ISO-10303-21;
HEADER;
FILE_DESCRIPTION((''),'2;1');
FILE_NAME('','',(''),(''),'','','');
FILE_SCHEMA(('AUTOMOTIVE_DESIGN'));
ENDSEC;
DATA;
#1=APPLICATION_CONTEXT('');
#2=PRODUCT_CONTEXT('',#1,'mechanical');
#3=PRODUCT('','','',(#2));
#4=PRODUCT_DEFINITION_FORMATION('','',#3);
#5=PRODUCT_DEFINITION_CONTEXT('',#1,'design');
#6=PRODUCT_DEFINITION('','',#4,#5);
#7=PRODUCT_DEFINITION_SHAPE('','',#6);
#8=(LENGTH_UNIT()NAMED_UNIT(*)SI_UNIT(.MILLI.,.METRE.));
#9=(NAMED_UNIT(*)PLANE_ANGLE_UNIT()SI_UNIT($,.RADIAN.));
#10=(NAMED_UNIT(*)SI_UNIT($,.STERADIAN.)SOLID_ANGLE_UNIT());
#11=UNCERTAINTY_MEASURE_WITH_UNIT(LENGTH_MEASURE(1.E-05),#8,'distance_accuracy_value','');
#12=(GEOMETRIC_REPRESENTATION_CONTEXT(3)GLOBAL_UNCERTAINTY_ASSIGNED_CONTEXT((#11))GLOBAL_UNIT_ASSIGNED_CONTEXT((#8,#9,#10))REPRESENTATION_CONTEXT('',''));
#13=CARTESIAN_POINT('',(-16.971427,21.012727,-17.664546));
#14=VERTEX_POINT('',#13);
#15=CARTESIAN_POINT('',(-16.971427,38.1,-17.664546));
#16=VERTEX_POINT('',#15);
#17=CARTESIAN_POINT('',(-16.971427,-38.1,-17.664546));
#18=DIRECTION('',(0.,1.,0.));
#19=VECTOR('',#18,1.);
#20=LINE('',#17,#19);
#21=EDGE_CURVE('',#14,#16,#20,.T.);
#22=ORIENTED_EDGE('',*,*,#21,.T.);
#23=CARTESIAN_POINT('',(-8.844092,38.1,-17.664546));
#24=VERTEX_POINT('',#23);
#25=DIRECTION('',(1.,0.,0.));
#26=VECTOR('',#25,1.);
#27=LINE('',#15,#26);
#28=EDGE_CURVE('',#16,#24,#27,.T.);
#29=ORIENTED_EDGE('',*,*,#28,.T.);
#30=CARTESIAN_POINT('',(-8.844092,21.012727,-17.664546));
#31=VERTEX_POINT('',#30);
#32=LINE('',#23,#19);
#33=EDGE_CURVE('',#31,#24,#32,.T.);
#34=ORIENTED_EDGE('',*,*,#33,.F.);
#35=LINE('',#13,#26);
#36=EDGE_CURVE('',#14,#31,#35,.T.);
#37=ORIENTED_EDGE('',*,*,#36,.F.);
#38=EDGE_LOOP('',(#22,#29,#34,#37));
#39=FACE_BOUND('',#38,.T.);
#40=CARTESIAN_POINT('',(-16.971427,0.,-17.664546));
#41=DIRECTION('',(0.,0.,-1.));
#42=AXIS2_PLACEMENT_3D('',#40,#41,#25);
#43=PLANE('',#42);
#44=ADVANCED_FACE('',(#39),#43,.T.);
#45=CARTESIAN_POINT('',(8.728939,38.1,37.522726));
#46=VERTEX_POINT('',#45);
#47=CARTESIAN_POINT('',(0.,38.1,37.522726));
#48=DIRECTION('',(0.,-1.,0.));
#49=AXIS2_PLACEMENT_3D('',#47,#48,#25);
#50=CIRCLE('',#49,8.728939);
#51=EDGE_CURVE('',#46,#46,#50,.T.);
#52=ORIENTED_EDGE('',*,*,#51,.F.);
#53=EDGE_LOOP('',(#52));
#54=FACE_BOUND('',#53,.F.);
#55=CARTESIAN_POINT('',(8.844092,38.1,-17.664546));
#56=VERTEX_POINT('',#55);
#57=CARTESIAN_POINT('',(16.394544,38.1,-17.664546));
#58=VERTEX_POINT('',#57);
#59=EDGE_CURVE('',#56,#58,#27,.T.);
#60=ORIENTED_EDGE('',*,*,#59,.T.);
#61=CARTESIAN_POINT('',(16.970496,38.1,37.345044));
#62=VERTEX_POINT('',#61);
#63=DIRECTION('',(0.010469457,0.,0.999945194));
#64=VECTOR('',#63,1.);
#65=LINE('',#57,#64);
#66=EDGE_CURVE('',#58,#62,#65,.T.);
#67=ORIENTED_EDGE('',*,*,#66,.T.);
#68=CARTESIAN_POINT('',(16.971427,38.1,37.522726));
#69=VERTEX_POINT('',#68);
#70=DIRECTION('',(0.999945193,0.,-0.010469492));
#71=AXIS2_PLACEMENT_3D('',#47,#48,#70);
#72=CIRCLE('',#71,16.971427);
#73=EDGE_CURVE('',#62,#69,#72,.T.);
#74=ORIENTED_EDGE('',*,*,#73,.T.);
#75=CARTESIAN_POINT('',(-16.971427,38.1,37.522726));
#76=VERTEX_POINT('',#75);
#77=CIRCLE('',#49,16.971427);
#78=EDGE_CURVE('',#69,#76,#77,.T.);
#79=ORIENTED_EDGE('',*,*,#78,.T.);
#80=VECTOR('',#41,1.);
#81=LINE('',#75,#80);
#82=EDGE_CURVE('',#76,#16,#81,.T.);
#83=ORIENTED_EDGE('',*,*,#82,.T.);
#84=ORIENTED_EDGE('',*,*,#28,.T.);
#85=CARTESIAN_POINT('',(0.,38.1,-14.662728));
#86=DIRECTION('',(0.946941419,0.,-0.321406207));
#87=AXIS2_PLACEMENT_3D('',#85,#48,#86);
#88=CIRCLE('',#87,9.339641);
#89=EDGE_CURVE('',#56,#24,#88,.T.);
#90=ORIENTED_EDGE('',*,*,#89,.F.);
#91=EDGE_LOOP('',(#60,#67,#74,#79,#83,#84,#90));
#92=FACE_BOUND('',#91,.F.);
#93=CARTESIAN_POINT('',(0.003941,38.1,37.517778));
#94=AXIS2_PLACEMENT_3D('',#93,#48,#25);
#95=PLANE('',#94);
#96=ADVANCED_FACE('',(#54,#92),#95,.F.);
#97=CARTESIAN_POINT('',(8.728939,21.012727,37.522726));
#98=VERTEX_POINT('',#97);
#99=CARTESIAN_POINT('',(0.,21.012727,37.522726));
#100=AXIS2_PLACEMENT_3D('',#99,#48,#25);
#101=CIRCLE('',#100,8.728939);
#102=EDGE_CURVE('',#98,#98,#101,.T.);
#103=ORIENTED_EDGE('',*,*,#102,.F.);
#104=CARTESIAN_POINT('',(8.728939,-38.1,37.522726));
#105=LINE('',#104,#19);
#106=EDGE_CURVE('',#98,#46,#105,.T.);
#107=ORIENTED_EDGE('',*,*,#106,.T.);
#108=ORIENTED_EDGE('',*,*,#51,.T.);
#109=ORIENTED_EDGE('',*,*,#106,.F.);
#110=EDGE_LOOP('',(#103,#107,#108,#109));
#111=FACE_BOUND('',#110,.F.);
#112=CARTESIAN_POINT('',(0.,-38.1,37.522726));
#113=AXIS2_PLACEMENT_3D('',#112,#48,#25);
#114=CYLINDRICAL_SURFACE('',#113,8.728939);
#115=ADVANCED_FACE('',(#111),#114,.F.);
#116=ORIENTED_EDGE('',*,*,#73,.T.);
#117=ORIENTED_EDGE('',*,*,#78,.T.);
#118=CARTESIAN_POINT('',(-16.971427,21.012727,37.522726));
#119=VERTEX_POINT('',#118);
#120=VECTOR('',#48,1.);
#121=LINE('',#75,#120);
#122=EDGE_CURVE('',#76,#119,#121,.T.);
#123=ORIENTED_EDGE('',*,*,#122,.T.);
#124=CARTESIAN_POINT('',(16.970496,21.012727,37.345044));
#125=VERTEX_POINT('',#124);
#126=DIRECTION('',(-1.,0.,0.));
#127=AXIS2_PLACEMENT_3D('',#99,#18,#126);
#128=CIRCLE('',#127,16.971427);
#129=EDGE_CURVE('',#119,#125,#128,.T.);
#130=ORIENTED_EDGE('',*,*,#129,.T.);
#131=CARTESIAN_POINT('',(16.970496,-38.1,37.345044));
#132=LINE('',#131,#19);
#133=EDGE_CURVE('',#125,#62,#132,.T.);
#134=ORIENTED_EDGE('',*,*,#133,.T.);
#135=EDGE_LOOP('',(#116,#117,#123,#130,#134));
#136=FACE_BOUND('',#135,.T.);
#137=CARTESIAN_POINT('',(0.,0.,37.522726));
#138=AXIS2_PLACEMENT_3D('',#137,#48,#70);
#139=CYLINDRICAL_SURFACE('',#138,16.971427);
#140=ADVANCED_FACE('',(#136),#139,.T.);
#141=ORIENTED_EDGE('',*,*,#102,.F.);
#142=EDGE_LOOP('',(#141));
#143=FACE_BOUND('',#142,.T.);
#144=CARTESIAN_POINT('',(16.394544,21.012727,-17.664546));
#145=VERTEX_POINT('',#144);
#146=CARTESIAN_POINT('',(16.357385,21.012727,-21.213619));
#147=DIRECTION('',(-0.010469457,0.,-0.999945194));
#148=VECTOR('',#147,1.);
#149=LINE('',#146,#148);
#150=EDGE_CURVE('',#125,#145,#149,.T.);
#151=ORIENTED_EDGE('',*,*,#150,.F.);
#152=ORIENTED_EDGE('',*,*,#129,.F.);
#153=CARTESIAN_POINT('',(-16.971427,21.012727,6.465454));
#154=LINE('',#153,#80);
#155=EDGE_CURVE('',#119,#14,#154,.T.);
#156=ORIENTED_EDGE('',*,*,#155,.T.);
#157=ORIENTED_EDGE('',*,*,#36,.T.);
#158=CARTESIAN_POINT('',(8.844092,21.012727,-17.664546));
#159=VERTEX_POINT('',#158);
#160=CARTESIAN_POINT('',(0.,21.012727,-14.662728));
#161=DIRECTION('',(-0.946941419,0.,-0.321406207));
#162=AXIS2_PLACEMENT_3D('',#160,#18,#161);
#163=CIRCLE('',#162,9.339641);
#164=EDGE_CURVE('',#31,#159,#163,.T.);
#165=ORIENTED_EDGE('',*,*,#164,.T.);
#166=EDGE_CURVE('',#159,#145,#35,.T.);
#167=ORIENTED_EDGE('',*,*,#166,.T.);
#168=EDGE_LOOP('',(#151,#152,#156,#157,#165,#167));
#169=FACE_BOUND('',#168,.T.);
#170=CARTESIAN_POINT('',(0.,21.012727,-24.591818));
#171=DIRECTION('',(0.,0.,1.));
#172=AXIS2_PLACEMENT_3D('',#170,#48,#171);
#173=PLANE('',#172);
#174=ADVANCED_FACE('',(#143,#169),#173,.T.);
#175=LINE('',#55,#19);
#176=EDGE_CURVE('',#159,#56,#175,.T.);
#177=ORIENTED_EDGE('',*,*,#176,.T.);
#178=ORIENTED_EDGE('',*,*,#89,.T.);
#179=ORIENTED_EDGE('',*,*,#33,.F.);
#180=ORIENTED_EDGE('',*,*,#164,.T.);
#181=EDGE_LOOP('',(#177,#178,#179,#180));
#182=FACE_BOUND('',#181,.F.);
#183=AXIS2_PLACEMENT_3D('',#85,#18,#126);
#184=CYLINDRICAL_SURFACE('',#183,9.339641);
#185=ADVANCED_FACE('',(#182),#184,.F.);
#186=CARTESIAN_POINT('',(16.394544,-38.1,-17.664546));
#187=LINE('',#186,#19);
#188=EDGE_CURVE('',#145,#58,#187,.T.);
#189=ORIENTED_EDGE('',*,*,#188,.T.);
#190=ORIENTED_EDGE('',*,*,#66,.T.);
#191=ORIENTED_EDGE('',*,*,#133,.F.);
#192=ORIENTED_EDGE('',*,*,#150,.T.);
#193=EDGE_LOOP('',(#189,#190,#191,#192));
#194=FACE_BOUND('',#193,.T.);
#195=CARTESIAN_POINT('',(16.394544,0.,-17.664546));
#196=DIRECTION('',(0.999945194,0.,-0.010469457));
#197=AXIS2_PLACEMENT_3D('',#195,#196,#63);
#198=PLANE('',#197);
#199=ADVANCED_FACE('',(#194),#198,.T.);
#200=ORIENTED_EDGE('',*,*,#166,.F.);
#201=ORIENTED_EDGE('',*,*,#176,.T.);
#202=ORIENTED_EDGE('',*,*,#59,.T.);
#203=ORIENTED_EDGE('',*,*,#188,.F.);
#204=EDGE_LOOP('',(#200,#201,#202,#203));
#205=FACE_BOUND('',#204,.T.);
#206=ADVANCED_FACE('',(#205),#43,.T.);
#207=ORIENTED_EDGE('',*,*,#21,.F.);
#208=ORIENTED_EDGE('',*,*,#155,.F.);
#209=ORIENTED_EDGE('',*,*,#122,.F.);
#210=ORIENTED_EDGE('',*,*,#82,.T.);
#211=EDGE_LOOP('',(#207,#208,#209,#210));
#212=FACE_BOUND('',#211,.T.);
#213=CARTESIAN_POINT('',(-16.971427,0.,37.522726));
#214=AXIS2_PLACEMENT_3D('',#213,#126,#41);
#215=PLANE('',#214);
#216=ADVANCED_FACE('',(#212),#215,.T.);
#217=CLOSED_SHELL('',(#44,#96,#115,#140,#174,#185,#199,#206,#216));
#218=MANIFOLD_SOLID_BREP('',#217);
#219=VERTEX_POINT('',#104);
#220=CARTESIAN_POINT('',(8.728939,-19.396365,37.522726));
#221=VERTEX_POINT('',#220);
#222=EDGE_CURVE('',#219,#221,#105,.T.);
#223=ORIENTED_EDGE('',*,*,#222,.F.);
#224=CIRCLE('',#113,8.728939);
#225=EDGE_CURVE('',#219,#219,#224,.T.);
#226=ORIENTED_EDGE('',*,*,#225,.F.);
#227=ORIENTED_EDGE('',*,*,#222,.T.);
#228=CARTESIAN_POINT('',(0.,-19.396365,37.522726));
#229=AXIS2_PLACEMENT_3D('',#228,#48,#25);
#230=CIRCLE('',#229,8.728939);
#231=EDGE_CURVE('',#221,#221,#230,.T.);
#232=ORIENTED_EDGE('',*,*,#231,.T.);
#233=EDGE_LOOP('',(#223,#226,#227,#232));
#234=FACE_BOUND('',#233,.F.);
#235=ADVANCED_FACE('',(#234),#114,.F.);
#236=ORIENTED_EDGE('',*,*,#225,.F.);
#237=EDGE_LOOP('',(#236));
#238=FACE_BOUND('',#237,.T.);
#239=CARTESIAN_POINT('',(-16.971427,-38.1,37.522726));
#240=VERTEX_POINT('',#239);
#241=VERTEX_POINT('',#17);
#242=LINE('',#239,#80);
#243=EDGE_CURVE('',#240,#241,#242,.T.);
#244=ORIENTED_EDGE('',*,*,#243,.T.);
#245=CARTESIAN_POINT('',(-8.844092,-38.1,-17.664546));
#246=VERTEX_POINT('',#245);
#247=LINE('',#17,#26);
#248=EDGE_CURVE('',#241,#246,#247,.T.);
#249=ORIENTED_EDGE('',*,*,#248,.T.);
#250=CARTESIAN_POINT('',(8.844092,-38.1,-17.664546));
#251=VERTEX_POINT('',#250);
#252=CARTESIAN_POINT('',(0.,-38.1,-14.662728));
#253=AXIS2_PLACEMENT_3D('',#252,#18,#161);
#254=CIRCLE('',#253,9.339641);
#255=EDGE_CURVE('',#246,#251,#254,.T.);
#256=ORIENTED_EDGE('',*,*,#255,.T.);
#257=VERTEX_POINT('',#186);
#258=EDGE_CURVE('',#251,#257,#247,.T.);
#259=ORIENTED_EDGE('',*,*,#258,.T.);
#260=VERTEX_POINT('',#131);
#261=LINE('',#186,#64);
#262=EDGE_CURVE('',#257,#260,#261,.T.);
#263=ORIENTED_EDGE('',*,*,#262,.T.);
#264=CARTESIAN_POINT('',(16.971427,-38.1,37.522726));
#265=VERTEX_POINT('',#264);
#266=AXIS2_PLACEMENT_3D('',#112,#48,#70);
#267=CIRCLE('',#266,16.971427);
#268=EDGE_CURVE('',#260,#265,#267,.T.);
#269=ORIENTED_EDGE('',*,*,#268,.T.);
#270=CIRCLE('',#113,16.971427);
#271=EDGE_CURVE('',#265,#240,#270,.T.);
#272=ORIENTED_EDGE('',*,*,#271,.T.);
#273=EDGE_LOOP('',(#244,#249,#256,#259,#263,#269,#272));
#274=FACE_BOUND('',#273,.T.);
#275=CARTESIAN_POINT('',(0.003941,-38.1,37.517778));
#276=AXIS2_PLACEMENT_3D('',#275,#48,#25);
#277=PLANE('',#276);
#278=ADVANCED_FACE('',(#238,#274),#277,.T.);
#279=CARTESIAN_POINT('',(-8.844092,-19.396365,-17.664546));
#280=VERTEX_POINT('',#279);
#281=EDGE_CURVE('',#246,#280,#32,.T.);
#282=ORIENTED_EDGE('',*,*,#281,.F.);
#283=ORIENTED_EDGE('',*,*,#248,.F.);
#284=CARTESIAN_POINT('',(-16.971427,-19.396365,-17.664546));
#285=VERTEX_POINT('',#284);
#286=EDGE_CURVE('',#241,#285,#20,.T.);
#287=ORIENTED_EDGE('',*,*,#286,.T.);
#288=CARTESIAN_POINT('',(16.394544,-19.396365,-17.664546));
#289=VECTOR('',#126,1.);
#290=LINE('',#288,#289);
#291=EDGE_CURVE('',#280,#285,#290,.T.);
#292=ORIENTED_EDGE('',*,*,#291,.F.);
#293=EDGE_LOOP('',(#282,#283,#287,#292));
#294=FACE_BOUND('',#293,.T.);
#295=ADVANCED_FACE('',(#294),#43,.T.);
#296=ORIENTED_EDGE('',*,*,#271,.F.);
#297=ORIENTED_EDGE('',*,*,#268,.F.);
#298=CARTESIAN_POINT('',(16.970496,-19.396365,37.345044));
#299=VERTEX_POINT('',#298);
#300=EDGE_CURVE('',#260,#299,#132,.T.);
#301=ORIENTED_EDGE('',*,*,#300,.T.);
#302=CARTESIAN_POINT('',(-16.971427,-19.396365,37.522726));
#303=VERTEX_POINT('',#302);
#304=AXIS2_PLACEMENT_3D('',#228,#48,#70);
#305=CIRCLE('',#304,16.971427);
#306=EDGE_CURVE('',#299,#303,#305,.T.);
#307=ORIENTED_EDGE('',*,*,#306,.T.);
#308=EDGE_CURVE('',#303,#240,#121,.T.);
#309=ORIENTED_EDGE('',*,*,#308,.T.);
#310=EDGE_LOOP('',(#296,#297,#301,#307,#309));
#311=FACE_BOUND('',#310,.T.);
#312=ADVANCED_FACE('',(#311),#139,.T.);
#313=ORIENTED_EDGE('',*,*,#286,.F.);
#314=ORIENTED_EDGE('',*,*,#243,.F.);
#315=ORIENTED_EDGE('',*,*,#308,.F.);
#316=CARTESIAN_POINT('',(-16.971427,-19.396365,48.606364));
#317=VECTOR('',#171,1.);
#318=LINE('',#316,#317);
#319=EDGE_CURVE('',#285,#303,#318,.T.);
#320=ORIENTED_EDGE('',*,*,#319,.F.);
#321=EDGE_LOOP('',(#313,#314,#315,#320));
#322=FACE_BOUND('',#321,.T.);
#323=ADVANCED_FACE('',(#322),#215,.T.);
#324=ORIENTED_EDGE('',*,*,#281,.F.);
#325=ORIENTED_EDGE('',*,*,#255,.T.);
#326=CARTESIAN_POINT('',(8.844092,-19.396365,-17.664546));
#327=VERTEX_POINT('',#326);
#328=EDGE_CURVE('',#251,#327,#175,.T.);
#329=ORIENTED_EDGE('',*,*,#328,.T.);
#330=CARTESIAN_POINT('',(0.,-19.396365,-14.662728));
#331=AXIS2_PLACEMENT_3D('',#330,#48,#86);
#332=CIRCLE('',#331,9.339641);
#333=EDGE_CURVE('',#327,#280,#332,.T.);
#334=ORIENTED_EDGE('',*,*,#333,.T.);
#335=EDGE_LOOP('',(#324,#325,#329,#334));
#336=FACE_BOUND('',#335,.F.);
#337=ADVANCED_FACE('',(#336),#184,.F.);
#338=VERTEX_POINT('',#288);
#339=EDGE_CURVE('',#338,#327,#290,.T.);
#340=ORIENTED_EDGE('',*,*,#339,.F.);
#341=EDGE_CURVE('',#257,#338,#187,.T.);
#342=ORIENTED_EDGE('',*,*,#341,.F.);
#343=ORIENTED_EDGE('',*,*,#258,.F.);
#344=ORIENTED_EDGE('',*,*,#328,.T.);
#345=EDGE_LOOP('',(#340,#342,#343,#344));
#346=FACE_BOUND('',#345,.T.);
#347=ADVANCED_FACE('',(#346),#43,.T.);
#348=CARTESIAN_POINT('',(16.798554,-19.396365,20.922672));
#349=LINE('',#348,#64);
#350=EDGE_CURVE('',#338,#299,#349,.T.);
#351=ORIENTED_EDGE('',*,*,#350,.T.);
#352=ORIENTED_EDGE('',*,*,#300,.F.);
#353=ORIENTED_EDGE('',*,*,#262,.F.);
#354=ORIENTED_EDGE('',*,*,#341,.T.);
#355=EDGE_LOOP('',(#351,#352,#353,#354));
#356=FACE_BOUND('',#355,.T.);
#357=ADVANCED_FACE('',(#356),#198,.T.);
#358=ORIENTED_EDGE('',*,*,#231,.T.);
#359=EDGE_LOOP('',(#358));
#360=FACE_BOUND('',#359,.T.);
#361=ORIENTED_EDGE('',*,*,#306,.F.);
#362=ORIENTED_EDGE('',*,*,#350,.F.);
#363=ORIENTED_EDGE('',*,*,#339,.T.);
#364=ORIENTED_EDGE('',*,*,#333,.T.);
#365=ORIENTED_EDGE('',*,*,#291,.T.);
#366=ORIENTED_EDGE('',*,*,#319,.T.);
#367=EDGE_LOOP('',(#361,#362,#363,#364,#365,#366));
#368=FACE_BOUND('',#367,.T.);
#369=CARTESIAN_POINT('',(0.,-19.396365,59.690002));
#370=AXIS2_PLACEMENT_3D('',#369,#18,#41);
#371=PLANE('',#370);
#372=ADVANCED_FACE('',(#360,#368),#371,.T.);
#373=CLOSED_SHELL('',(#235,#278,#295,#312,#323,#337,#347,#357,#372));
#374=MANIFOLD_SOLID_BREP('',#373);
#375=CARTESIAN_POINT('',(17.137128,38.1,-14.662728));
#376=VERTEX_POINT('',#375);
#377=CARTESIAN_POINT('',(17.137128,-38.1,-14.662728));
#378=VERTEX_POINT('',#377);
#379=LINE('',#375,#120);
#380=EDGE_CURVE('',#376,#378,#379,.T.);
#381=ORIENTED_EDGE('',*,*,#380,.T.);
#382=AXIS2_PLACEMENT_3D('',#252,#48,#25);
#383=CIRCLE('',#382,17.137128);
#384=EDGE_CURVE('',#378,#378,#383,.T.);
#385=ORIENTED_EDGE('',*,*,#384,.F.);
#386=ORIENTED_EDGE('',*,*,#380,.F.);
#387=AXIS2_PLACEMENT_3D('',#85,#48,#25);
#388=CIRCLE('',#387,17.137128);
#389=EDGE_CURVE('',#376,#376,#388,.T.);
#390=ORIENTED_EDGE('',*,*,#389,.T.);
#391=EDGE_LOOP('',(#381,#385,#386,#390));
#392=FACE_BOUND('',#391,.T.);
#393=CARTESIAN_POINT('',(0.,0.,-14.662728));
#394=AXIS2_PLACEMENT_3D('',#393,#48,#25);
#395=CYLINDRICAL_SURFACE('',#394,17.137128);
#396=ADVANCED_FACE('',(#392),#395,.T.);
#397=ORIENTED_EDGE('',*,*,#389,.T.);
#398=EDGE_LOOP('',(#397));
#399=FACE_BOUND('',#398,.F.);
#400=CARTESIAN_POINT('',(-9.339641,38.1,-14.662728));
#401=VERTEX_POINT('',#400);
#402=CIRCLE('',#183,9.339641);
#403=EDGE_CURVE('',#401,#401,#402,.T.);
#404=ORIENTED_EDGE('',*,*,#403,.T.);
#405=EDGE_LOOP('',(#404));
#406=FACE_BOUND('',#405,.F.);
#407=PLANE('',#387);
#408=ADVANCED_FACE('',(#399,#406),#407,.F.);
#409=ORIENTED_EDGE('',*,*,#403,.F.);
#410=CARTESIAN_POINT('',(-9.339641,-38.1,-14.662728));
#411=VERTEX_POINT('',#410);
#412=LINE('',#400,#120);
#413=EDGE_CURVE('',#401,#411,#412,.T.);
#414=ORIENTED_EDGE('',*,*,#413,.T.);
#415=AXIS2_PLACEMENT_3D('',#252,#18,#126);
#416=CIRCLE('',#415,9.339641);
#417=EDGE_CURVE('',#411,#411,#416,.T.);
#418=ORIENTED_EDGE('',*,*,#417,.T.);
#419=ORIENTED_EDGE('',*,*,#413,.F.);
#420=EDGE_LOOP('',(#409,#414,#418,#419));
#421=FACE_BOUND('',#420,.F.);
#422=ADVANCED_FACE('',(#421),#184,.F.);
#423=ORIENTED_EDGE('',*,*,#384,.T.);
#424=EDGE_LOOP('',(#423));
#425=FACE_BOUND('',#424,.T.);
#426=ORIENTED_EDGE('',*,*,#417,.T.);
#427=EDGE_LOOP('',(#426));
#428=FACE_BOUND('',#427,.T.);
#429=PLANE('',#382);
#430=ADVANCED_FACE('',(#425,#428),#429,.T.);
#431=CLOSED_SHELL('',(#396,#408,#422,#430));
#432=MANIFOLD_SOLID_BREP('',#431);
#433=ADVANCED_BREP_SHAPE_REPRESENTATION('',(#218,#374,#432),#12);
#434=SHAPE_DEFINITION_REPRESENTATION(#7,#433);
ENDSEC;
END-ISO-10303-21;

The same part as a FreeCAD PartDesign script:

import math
import FreeCAD as App
import Part
import Sketcher
Q = App.Units.Quantity


def add_polygon(sketch, points):
    """Adds a closed chain of lines whose ends are joined by coincident constraints."""
    first, n = sketch.GeometryCount, len(points)
    for a, b in zip(points, points[1:] + points[:1]):
        sketch.addGeometry(Part.LineSegment(App.Vector(*a, 0), App.Vector(*b, 0)), False)
    for i in range(n):
        sketch.addConstraint(Sketcher.Constraint("Coincident", first + i, 2, first + (i + 1) % n, 1))

doc = App.newDocument("Part")
body = doc.addObject("PartDesign::Body", "Body")
body.AllowCompound = True

sketch1 = doc.addObject("Sketcher::SketchObject", "Sketch")
body.addObject(sketch1)
sketch1.AttachmentSupport = (doc.XZ_Plane, [""])
sketch1.MapMode = "FlatFace"
sketch1.addGeometry([
    Part.ArcOfCircle(Part.Circle(App.Vector(0, 37.52, 0), App.Vector(0, 0, 1), 16.97), math.radians(-0.6), math.radians(0)),
    Part.ArcOfCircle(Part.Circle(App.Vector(0, 37.52, 0), App.Vector(0, 0, 1), 16.97), math.radians(0), math.radians(180)),
    Part.LineSegment(App.Vector(-16.97, 37.52, 0), App.Vector(-16.97, -17.66, 0)),
    Part.LineSegment(App.Vector(-16.97, -17.66, 0), App.Vector(16.39, -17.66, 0)),
    Part.LineSegment(App.Vector(16.39, -17.66, 0), App.Vector(16.97, 37.35, 0)),
], False)
sketch1.addConstraint([
    Sketcher.Constraint("Tangent", 0, 2, 1, 1),
    Sketcher.Constraint("Tangent", 1, 2, 2, 1),
    Sketcher.Constraint("Coincident", 2, 2, 3, 1),
    Sketcher.Constraint("Coincident", 3, 2, 4, 1),
    Sketcher.Constraint("Tangent", 4, 2, 0, 1),
    Sketcher.Constraint("Vertical", 2),
    Sketcher.Constraint("Horizontal", 3),
    Sketcher.Constraint("Equal", 0, 1),
    Sketcher.Constraint("Symmetric", 0, 2, 1, 2, -2),
    Sketcher.Constraint("Radius", 0, Q("16.971427 mm")),
    Sketcher.Constraint("DistanceX", 3, 1, 3, 2, Q("33.365971 mm")),
    Sketcher.Constraint("DistanceY", 2, 2, 2, 1, Q("55.187272 mm")),
    Sketcher.Constraint("DistanceY", -1, 1, 0, 3, Q("37.522726 mm")),
])
pad1 = doc.addObject("PartDesign::Pad", "Pad")
body.addObject(pad1)
pad1.Profile = sketch1
pad1.Type = "TwoLengths"
pad1.Length = Q("1.5 in")
pad1.Length2 = Q("1.5 in")

sketch2 = doc.addObject("Sketcher::SketchObject", "Sketch001")
body.addObject(sketch2)
sketch2.AttachmentSupport = (doc.YZ_Plane, [""])
sketch2.MapMode = "FlatFace"
add_polygon(sketch2, [(21, 63), (-19, 60), (-19, -25), (21, -25)])
sketch2.addConstraint([
    Sketcher.Constraint("Vertical", 1),
    Sketcher.Constraint("Horizontal", 2),
    Sketcher.Constraint("Vertical", 3),
    Sketcher.Constraint("DistanceY", -1, 1, 0, 2, Q("2.3500001 in")),
    Sketcher.Constraint("DistanceX", 2, 1, 2, 2, Q("40.409092 mm")),
    Sketcher.Constraint("DistanceY", 1, 2, 1, 1, Q("84.281821 mm")),
    Sketcher.Constraint("DistanceY", 3, 1, 3, 2, Q("87.283641 mm")),
    Sketcher.Constraint("DistanceX", 0, 2, -1, 1, Q("19.396365 mm")),
])
pocket1 = doc.addObject("PartDesign::Pocket", "Pocket")
body.addObject(pocket1)
pocket1.Profile = sketch2
pocket1.Type = "ThroughAll"
pocket1.Midplane = True
body2 = doc.addObject("PartDesign::Body", "Body001")

sketch3 = doc.addObject("Sketcher::SketchObject", "Sketch002")
body2.addObject(sketch3)
sketch3.AttachmentSupport = (doc.getObject("XZ_Plane001"), [""])
sketch3.MapMode = "FlatFace"
sketch3.addGeometry(Part.Circle(App.Vector(0, -15, 0), App.Vector(0, 0, 1), 17), False)
sketch3.addConstraint([
    Sketcher.Constraint("PointOnObject", 0, 3, -2),
    Sketcher.Constraint("Diameter", 0, Q("34.274257 mm")),
    Sketcher.Constraint("DistanceY", 0, 3, -1, 1, Q("14.662728 mm")),
])
pad2 = doc.addObject("PartDesign::Pad", "Pad001")
body2.addObject(pad2)
pad2.Profile = sketch3
pad2.Type = "TwoLengths"
pad2.Length = Q("1.5 in")
pad2.Length2 = Q("1.5 in")
body3 = doc.addObject("PartDesign::Body", "Body002")

sketch4 = doc.addObject("Sketcher::SketchObject", "Sketch003")
body3.addObject(sketch4)
sketch4.AttachmentSupport = (doc.getObject("XZ_Plane002"), [""])
sketch4.MapMode = "FlatFace"
sketch4.AttachmentOffset = App.Placement(App.Vector(0, 0, -1.5 * 25.4), App.Rotation())
sketch4.addGeometry(Part.Circle(App.Vector(0, -15, 0), App.Vector(0, 0, 1), 9), False)
sketch4.addConstraint([
    Sketcher.Constraint("PointOnObject", 0, 3, -2),
    Sketcher.Constraint("Diameter", 0, Q("18.679281 mm")),
    Sketcher.Constraint("DistanceY", 0, 3, -1, 1, Q("14.662728 mm")),
])
pad3 = doc.addObject("PartDesign::Pad", "Pad002")
body3.addObject(pad3)
pad3.Profile = sketch4
pad3.Length = 76.201
body.AllowCompound = True
doc.recompute()

body4 = doc.addObject("PartDesign::Body", "Body003")
body4.BaseFeature = body3
boolean = doc.addObject("PartDesign::Boolean", "Boolean")
body.addObject(boolean)
boolean.Type = "Cut"
boolean.addObjects([body4])
doc.recompute()

sketch5 = doc.addObject("Sketcher::SketchObject", "Sketch004")
body.addObject(sketch5)
sketch5.AttachmentSupport = (doc.XZ_Plane, [""])
sketch5.MapMode = "FlatFace"
sketch5.AttachmentOffset = App.Placement(App.Vector(0, 0, 1.5 * 25.4), App.Rotation())
sketch5.addGeometry(Part.Circle(App.Vector(0, 38, 0), App.Vector(0, 0, 1), 9), False)
sketch5.addConstraint([
    Sketcher.Constraint("PointOnObject", 0, 3, -2),
    Sketcher.Constraint("Diameter", 0, Q("17.457879 mm")),
    Sketcher.Constraint("DistanceY", -1, 1, 0, 3, Q("37.522726 mm")),
])
pocket2 = doc.addObject("PartDesign::Pocket", "Pocket001")
body.addObject(pocket2)
pocket2.Profile = sketch5
pocket2.Type = "ThroughAll"
doc.recompute()

boolean2 = doc.addObject("PartDesign::Boolean", "Boolean001")
body2.addObject(boolean2)
boolean2.Type = "Cut"
boolean2.addObjects([body3])

doc.recompute()
